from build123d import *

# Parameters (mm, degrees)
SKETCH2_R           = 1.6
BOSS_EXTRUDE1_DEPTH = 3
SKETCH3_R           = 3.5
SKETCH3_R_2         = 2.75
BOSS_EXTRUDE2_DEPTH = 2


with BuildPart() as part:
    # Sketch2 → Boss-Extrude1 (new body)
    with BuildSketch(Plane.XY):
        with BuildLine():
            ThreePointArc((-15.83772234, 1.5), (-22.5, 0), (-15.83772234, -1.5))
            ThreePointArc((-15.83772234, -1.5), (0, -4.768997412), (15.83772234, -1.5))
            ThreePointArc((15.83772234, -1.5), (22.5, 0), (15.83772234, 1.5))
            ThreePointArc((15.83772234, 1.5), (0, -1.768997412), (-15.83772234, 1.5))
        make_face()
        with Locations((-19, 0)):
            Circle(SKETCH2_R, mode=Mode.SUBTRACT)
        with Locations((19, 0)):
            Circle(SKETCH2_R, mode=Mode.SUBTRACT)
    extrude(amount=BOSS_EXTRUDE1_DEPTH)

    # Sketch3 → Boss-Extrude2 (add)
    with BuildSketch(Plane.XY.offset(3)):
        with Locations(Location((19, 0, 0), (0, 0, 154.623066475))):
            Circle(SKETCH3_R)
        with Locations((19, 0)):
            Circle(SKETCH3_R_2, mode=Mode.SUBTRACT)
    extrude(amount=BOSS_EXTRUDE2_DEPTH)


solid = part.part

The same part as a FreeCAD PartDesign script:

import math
import FreeCAD as App
import Part
import Sketcher
Q = App.Units.Quantity

doc = App.newDocument("Part")
params = doc.addObject("Spreadsheet::Sheet", "Params")
for row, (alias, value) in enumerate([
    ("sketch1_radius", "40 mm"),
    ("sketch1_diameter", "3.2 mm"),
    ("sketch1_radius2", "3.5 mm"),
    ("pad1_length", "3 mm"),
    ("sketch2_diameter", "7 mm"),
    ("sketch2_diameter2", "5.5 mm"),
    ("pad2_length", "2 mm"),
], start=1):
    params.set(f"A{row}", alias)
    params.set(f"B{row}", "=" + value)
    params.setAlias(f"B{row}", alias)

body = doc.addObject("PartDesign::Body", "Body")

# Sketch on XY plane
sketch1 = body.newObject("Sketcher::SketchObject", "Sketch")
sketch1.AttachmentSupport = (doc.getObject("XY_Plane"), [""])
sketch1.MapMode = "FlatFace"
sketch1.addGeometry([
    Part.ArcOfCircle(Part.Circle(App.Vector(-19, 0, 0), App.Vector(0, 0, 1), 3.5), math.radians(25), math.radians(335)),  # 0
    Part.ArcOfCircle(Part.Circle(App.Vector(0, 35.2, 0), App.Vector(0, 0, 1), 40), math.radians(-113), math.radians(-67)),  # 1
    Part.ArcOfCircle(Part.Circle(App.Vector(19, 0, 0), App.Vector(0, 0, 1), 3.5), math.radians(-155), math.radians(155)),  # 2
    Part.ArcOfCircle(Part.Circle(App.Vector(0, 38.2, 0), App.Vector(0, 0, 1), 40), math.radians(-113), math.radians(-67)),  # 3
    Part.Circle(App.Vector(-19, 0, 0), App.Vector(0, 0, 1), 1.6),  # 4
    Part.Circle(App.Vector(19, 0, 0), App.Vector(0, 0, 1), 1.6),  # 5
], False)
sketch1.addConstraint([
    Sketcher.Constraint("Coincident", 0, 2, 1, 1),
    Sketcher.Constraint("Coincident", 1, 2, 2, 1),
    Sketcher.Constraint("Coincident", 2, 2, 3, 2),
    Sketcher.Constraint("Coincident", 3, 1, 0, 1),
    Sketcher.Constraint("Coincident", 4, 3, 0, 3),
    Sketcher.Constraint("Coincident", 5, 3, 2, 3),
    Sketcher.Constraint("Equal", 0, 2),
    Sketcher.Constraint("Equal", 1, 3),
    Sketcher.Constraint("Equal", 4, 5),
    Sketcher.Constraint("Symmetric", 0, 3, 2, 3, -1, 1),
    Sketcher.Constraint("Symmetric", 0, 2, 1, 2, -2),
    Sketcher.Constraint("PointOnObject", 3, 3, -2),
    Sketcher.Constraint("Vertical", 1, 2, 2, 2),
    Sketcher.Constraint("Radius", 1, Q("40 mm")),
    Sketcher.Constraint("Diameter", 4, Q("3.2 mm")),
    Sketcher.Constraint("Radius", 0, Q("3.5 mm")),
    Sketcher.Constraint("DistanceX", 0, 3, -1, 1, Q("19 mm")),
    Sketcher.Constraint("DistanceY", 1, 3, 3, 3, Q("3 mm")),
])
sketch1.setExpression("Constraints[13]", "Params.sketch1_radius")
sketch1.setExpression("Constraints[14]", "Params.sketch1_diameter")
sketch1.setExpression("Constraints[15]", "Params.sketch1_radius2")
pad1 = body.newObject("PartDesign::Pad", "Pad")
pad1.Profile = sketch1
pad1.setExpression("Length", "Params.pad1_length")

# Sketch on XY plane
sketch2 = body.newObject("Sketcher::SketchObject", "Sketch001")
sketch2.AttachmentSupport = (doc.getObject("XY_Plane"), [""])
sketch2.MapMode = "FlatFace"
sketch2.AttachmentOffset = App.Placement(App.Vector(0, 0, 3), App.Rotation())
sketch2.addGeometry([
    Part.Circle(App.Vector(19, 0, 0), App.Vector(0, 0, 1), 3.5),
    Part.Circle(App.Vector(19, 0, 0), App.Vector(0, 0, 1), 2.8),
], False)
sketch2.addConstraint([
    Sketcher.Constraint("Coincident", 1, 3, 0, 3),
    Sketcher.Constraint("PointOnObject", 0, 3, -1),
    Sketcher.Constraint("Diameter", 0, Q("7 mm")),
    Sketcher.Constraint("Diameter", 1, Q("5.5 mm")),
    Sketcher.Constraint("DistanceX", -1, 1, 0, 3, Q("19 mm")),
])
sketch2.setExpression("Constraints[2]", "Params.sketch2_diameter")
sketch2.setExpression("Constraints[3]", "Params.sketch2_diameter2")
pad2 = body.newObject("PartDesign::Pad", "Pad001")
pad2.Profile = sketch2
pad2.setExpression("Length", "Params.pad2_length")

doc.recompute()
